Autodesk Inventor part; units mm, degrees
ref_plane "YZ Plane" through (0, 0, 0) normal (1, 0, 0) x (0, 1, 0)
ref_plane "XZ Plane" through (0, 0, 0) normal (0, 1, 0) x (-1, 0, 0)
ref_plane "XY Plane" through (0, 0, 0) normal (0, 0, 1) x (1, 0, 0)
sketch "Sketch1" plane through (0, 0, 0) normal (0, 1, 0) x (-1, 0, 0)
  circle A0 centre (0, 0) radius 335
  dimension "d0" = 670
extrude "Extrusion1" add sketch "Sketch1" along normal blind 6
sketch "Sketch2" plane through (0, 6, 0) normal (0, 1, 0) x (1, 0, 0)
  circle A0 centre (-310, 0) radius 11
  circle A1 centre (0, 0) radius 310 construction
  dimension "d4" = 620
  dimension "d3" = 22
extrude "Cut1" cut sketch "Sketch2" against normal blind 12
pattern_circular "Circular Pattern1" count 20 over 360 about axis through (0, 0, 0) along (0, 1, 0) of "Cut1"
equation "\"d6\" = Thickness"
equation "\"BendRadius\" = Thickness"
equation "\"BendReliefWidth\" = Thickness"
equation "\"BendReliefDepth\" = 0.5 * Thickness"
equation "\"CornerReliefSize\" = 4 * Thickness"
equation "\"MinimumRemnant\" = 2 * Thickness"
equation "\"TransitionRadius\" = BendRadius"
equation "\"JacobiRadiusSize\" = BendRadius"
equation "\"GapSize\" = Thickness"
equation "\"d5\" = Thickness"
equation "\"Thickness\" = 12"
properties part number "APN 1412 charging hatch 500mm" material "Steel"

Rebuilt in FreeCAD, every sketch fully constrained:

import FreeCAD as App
import Part
import Sketcher

doc = App.newDocument("Part")
body = doc.addObject("PartDesign::Body", "Body")

sketch1 = body.newObject("Sketcher::SketchObject", "Sketch")
sketch1.AttachmentSupport = (doc.getObject("XZ_Plane"), [""])
sketch1.MapMode = "FlatFace"
sketch1.addGeometry(Part.Circle(App.Vector(0, 0, 0), App.Vector(0, 0, 1), 335), False)
sketch1.addConstraint([
    Sketcher.Constraint("Coincident", 0, 3, -1, 1),
    Sketcher.Constraint("Diameter", 0, 670.0),
])
pad1 = body.newObject("PartDesign::Pad", "Pad")
pad1.Profile = sketch1
pad1.Length = 6
pad1.Reversed = True

sketch2 = body.newObject("Sketcher::SketchObject", "Sketch001")
sketch2.AttachmentSupport = (doc.getObject("XZ_Plane"), [""])
sketch2.MapMode = "FlatFace"
sketch2.AttachmentOffset = App.Placement(App.Vector(0, 0, -6), App.Rotation())
sketch2.addGeometry(Part.Circle(App.Vector(-310, 0, 0), App.Vector(0, 0, 1), 11), False)
sketch2.addConstraint([
    Sketcher.Constraint("PointOnObject", 0, 3, -1),
    Sketcher.Constraint("Diameter", 0, 22.0),
    Sketcher.Constraint("DistanceX", 0, 3, -1, 1, 310.0),
])
pocket1 = body.newObject("PartDesign::Pocket", "Pocket")
pocket1.Profile = sketch2
pocket1.Length = 12
pocket1.Reversed = True
doc.recompute()

polarpattern = body.newObject("PartDesign::PolarPattern", "PolarPattern")
polarpattern.Originals = [pocket1]
polarpattern.Axis = (doc.getObject("Y_Axis"), [""])
polarpattern.Angle = 360
polarpattern.Occurrences = 20
body.Tip = polarpattern

doc.recompute()
